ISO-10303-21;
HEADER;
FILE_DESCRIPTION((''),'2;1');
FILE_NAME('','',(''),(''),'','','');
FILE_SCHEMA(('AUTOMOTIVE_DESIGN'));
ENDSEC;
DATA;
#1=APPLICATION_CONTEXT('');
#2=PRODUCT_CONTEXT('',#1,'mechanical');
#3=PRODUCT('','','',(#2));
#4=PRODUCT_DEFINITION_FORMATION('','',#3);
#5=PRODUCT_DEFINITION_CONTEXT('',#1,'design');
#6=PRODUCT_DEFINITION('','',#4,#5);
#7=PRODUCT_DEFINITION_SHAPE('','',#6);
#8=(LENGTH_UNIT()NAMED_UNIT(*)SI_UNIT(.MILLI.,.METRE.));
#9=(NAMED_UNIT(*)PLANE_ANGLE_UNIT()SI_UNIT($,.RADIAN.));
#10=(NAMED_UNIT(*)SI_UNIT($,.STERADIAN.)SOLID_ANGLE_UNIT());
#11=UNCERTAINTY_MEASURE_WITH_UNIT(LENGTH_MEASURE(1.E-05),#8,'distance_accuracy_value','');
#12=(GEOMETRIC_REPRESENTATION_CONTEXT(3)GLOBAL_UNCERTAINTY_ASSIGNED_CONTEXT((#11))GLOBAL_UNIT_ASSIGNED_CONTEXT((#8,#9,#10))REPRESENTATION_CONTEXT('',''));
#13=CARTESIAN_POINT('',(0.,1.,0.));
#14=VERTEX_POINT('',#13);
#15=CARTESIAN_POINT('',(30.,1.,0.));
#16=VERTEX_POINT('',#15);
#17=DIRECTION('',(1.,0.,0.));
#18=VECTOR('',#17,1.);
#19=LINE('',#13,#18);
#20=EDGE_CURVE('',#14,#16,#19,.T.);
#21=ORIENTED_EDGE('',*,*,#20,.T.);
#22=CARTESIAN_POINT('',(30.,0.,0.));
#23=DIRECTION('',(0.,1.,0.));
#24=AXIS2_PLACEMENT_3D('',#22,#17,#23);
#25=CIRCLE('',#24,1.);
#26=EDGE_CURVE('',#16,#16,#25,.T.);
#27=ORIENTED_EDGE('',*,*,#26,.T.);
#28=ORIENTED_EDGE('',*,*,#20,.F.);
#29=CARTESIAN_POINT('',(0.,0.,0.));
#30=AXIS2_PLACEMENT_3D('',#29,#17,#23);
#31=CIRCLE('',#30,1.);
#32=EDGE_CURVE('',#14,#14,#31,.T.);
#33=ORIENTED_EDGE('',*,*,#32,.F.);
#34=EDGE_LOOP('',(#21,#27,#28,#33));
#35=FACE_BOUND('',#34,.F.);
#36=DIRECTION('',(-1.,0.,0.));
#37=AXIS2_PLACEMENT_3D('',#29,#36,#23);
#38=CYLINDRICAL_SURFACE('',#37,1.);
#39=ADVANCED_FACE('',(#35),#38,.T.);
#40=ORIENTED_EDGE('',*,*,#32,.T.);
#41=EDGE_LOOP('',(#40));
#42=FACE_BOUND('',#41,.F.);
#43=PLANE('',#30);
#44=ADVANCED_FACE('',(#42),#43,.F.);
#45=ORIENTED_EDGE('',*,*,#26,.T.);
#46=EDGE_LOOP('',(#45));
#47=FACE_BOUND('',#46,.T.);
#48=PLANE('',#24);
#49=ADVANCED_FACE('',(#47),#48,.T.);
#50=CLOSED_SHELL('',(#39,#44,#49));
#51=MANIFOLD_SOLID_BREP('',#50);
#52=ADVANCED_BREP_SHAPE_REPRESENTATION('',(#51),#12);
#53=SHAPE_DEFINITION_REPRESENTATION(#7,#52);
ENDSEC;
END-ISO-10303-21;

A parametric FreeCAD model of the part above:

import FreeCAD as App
import Part
import Sketcher
from FreeCAD import Vector

doc = App.newDocument("Part")
body = doc.addObject("PartDesign::Body", "Body")

sketch1 = body.newObject("Sketcher::SketchObject", "Sketch")
sketch1.AttachmentSupport = (doc.getObject("YZ_Plane"), [""])
sketch1.MapMode = "FlatFace"
sketch1.addGeometry(Part.Circle(Vector(0, 0, 0), Vector(0, 0, 1), 1), False)
sketch1.addConstraint([
    Sketcher.Constraint("Coincident", 0, 3, -1, 1),
    Sketcher.Constraint("Diameter", 0, 2.0),
])
pad1 = body.newObject("PartDesign::Pad", "Pad")
pad1.Profile = sketch1
pad1.Length = 30

doc.recompute()
